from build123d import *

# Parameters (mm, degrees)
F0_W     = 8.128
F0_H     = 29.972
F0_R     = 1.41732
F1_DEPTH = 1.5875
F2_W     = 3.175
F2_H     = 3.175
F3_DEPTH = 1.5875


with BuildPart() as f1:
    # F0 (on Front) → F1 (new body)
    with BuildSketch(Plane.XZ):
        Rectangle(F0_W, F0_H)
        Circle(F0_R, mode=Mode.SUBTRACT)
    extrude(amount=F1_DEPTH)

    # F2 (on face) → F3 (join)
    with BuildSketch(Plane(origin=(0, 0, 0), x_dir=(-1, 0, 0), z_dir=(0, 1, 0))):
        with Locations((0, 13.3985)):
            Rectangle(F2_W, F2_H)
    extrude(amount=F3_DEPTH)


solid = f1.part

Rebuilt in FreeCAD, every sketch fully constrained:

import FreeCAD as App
import Part
import Sketcher

V = App.Vector
Q = App.Units.Quantity


def add_polygon(sketch, points):
    """Adds a closed chain of lines whose ends are joined by coincident constraints."""
    first, n = sketch.GeometryCount, len(points)
    for a, b in zip(points, points[1:] + points[:1]):
        sketch.addGeometry(Part.LineSegment(App.Vector(*a, 0), App.Vector(*b, 0)), False)
    for i in range(n):
        sketch.addConstraint(Sketcher.Constraint("Coincident", first + i, 2, first + (i + 1) % n, 1))

doc = App.newDocument("Part")
body = doc.addObject("PartDesign::Body", "Body")

sketch1 = body.newObject("Sketcher::SketchObject", "Sketch")
sketch1.AttachmentSupport = (doc.getObject("XZ_Plane"), [""])
sketch1.MapMode = "FlatFace"
add_polygon(sketch1, [(-4.1, 15), (-4.1, -15), (4.1, -15), (4.1, 15)])
sketch1.addGeometry(Part.Circle(V(0, 0, 0), V(0, 0, 1), 1.4), False)
sketch1.addConstraint(Sketcher.Constraint("Vertical", 0))
sketch1.addConstraint(Sketcher.Constraint("Horizontal", 1))
sketch1.addConstraint(Sketcher.Constraint("Vertical", 2))
sketch1.addConstraint(Sketcher.Constraint("Horizontal", 3))
sketch1.addConstraint(Sketcher.Constraint("Coincident", 4, 3, -1, 1))
sketch1.addConstraint(Sketcher.Constraint("Symmetric", 0, 2, 2, 2, -1, 1))
sketch1.addConstraint(Sketcher.Constraint("Diameter", 4, Q("0.1116 in")))
sketch1.addConstraint(Sketcher.Constraint("DistanceX", 1, 1, 1, 2, Q("0.32 in")))
sketch1.addConstraint(Sketcher.Constraint("DistanceY", 0, 2, 0, 1, Q("1.18 in")))
pad1 = body.newObject("PartDesign::Pad", "Pad")
pad1.Profile = sketch1
pad1.Length = Q("0.0625 in")

sketch2 = body.newObject("Sketcher::SketchObject", "Sketch001")
sketch2.AttachmentSupport = (doc.getObject("XZ_Plane"), [""])
sketch2.MapMode = "FlatFace"
add_polygon(sketch2, [(1.6, 15), (1.6, 11.8), (-1.6, 11.8), (-1.6, 15)])
sketch2.addConstraint(Sketcher.Constraint("Vertical", 0))
sketch2.addConstraint(Sketcher.Constraint("Horizontal", 1))
sketch2.addConstraint(Sketcher.Constraint("Vertical", 2))
sketch2.addConstraint(Sketcher.Constraint("Horizontal", 3))
sketch2.addConstraint(Sketcher.Constraint("Equal", 3, 0))
sketch2.addConstraint(Sketcher.Constraint("DistanceX", 1, 2, 1, 1, Q("0.125 in")))
sketch2.addConstraint(Sketcher.Constraint("DistanceY", -1, 1, 2, 2, Q("0.59 in")))
sketch2.addConstraint(Sketcher.Constraint("DistanceX", -1, 1, 0, 2, Q("0.0625 in")))
pad2 = body.newObject("PartDesign::Pad", "Pad001")
pad2.Profile = sketch2
pad2.Length = Q("0.0625 in")
pad2.Reversed = True

doc.recompute()
